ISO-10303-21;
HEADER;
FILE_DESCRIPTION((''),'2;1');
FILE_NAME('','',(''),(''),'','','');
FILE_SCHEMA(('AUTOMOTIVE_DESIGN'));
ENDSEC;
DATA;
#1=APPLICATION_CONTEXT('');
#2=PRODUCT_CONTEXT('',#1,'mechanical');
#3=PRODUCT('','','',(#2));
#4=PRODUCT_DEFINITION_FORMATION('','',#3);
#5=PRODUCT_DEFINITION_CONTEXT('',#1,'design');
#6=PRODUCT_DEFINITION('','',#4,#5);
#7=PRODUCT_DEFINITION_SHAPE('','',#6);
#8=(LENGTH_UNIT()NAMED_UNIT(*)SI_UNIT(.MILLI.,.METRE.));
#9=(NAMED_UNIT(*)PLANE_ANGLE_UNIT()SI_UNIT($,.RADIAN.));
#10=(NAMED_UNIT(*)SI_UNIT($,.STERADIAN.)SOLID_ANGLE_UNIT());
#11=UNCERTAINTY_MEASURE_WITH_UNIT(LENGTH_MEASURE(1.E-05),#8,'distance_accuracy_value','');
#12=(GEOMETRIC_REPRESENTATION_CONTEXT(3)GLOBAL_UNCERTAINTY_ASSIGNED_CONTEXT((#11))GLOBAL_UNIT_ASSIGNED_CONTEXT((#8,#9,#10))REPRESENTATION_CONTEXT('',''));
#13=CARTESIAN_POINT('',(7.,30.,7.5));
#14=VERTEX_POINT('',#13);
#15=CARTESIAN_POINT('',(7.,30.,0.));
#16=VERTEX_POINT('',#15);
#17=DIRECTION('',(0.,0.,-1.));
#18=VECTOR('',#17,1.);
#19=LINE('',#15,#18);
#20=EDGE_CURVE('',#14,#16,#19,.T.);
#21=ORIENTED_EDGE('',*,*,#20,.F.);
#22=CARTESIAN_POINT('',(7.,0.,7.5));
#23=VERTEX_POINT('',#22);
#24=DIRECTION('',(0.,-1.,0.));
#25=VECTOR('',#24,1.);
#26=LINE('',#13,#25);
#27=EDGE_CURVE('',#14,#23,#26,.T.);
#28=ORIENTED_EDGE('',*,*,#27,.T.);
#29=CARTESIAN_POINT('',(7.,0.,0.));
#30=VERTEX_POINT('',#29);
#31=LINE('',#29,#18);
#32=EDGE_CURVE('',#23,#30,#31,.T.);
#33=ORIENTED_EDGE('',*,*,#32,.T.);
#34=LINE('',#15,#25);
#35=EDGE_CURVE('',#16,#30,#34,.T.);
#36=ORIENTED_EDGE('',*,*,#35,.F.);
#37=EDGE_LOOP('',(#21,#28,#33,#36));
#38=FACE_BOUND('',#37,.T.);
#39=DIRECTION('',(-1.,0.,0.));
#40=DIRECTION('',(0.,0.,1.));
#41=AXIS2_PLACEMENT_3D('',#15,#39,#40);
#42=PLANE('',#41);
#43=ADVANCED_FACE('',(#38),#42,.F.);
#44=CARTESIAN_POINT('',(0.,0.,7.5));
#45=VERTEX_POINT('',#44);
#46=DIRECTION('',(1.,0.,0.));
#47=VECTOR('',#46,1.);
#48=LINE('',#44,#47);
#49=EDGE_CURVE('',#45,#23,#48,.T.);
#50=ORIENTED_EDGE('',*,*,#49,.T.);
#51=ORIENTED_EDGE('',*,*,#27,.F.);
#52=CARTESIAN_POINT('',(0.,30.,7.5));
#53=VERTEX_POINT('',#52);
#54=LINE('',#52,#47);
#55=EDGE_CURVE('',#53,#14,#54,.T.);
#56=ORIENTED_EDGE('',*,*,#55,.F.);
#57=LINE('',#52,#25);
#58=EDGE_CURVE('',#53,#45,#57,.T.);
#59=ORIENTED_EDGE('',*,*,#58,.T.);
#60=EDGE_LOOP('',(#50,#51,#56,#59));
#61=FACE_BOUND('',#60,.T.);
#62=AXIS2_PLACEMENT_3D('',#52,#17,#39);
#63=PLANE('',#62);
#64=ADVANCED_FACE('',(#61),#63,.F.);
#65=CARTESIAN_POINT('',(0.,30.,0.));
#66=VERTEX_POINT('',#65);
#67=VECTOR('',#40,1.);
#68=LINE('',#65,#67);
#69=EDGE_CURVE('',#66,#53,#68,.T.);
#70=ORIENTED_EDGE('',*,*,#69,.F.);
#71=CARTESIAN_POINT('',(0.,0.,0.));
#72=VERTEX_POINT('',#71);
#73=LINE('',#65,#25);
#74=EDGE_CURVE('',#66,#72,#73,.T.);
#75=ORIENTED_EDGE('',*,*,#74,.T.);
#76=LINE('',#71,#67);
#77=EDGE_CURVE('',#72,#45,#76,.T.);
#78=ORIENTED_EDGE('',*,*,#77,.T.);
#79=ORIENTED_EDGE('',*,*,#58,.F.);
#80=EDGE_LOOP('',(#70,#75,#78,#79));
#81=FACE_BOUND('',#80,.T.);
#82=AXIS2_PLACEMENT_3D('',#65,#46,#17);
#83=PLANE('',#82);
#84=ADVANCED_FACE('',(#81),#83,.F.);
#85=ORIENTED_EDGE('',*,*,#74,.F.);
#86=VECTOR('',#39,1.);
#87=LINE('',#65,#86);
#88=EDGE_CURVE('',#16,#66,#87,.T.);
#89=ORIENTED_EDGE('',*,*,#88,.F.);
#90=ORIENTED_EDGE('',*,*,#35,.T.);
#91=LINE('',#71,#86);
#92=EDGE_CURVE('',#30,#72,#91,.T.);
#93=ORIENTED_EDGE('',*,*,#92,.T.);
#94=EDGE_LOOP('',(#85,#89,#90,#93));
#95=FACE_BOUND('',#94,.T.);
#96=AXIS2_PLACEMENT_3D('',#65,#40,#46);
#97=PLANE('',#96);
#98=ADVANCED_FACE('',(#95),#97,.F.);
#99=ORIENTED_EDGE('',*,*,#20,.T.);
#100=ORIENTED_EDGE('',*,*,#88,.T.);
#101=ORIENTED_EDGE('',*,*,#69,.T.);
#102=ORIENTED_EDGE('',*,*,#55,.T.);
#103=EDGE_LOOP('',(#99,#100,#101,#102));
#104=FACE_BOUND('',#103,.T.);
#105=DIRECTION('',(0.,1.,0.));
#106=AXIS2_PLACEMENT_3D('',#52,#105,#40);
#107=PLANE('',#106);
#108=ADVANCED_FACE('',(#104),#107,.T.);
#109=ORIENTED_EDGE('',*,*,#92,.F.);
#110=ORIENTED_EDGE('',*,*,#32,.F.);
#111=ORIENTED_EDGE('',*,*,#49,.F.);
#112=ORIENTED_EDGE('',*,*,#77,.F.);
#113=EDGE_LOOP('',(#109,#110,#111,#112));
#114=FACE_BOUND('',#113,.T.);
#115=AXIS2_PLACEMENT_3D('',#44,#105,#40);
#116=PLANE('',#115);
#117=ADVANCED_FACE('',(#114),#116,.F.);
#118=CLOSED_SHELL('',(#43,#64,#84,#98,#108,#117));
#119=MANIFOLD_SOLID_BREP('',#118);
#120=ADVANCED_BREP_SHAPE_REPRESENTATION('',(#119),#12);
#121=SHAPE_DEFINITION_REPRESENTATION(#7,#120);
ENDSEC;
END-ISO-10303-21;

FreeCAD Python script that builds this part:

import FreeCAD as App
import Part
import Sketcher
from FreeCAD import Vector


def add_polygon(sketch, points):
    """Adds a closed chain of lines whose ends are joined by coincident constraints."""
    first, n = sketch.GeometryCount, len(points)
    for a, b in zip(points, points[1:] + points[:1]):
        sketch.addGeometry(Part.LineSegment(App.Vector(*a, 0), App.Vector(*b, 0)), False)
    for i in range(n):
        sketch.addConstraint(Sketcher.Constraint("Coincident", first + i, 2, first + (i + 1) % n, 1))

doc = App.newDocument("Part")
body = doc.addObject("PartDesign::Body", "Body")

# Sketch on XZ plane
sketch1 = doc.addObject("Sketcher::SketchObject", "Sketch")
body.addObject(sketch1)
sketch1.AttachmentSupport = (doc.XZ_Plane, [""])
sketch1.MapMode = "FlatFace"
add_polygon(sketch1, [(0, 0), (0, 7.5), (7, 7.5), (7, 0)])  # lines 0-3
sketch1.addConstraint([
    Sketcher.Constraint("Vertical", 0),
    Sketcher.Constraint("Horizontal", 1),
    Sketcher.Constraint("Vertical", 2),
    Sketcher.Constraint("Horizontal", 3),
    Sketcher.Constraint("Coincident", 3, 2, -1, 1),
    Sketcher.Constraint("DistanceX", 1, 1, 1, 2, 7.0),
    Sketcher.Constraint("DistanceY", 0, 1, 0, 2, 7.5),
])
pad1 = doc.addObject("PartDesign::Pad", "Pad")
body.addObject(pad1)
pad1.Profile = sketch1
pad1.Length = 30
pad1.Reversed = True

doc.recompute()
